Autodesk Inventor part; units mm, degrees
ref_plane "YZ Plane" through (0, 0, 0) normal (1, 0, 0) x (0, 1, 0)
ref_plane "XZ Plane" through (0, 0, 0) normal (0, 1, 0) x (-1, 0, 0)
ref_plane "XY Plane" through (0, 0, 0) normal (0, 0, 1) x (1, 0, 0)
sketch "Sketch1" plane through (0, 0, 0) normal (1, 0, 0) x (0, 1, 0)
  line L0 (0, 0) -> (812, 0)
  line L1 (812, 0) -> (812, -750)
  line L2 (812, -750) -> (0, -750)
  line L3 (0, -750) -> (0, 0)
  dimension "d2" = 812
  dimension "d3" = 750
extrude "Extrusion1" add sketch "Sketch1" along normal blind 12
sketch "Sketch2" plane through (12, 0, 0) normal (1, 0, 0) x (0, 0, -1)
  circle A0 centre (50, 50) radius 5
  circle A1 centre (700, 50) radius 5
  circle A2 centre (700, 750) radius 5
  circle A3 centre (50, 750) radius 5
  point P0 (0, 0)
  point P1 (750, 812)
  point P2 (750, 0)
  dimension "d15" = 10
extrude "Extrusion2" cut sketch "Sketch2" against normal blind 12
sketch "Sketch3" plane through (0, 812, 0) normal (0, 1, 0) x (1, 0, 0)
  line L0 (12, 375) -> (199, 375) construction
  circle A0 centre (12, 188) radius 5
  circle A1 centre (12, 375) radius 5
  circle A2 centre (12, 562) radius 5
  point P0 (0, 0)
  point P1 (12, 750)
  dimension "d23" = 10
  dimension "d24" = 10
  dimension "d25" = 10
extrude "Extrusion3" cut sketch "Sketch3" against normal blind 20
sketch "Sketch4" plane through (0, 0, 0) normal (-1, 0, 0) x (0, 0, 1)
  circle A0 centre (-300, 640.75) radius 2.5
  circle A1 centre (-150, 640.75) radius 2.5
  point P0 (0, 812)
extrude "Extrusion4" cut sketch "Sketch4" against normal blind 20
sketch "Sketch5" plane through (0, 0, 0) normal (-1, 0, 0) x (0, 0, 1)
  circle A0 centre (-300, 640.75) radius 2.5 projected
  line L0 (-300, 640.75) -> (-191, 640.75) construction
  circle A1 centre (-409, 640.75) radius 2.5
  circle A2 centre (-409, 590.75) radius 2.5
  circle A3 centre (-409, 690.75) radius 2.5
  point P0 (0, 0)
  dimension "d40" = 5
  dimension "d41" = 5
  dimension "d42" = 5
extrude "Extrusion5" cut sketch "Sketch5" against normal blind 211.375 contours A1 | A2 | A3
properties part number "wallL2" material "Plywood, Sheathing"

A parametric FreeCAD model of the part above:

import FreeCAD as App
import Part
import Sketcher
from FreeCAD import Vector


def add_polygon(sketch, points):
    """Adds a closed chain of lines whose ends are joined by coincident constraints."""
    first, n = sketch.GeometryCount, len(points)
    for a, b in zip(points, points[1:] + points[:1]):
        sketch.addGeometry(Part.LineSegment(App.Vector(*a, 0), App.Vector(*b, 0)), False)
    for i in range(n):
        sketch.addConstraint(Sketcher.Constraint("Coincident", first + i, 2, first + (i + 1) % n, 1))

doc = App.newDocument("Part")
params = doc.addObject("Spreadsheet::Sheet", "Params")
for row, (alias, value) in enumerate([
    ("sketch1_width", "812 mm"),
    ("sketch1_height", "750 mm"),
    ("pad1_length", "12 mm"),
    ("sketch2_diameter", "10 mm"),
    ("pocket1_length", "12 mm"),
    ("sketch3_diameter", "10 mm"),
    ("pocket2_length", "20 mm"),
    ("sketch4_diameter", "5 mm"),
    ("pocket3_length", "20 mm"),
    ("sketch5_diameter", "5 mm"),
    ("pocket4_length", "211.375 mm"),
], start=1):
    params.set(f"A{row}", alias)
    params.set(f"B{row}", "=" + value)
    params.setAlias(f"B{row}", alias)

body = doc.addObject("PartDesign::Body", "Body")

sketch1 = doc.addObject("Sketcher::SketchObject", "Sketch")
body.addObject(sketch1)
sketch1.AttachmentSupport = (doc.YZ_Plane, [""])
sketch1.MapMode = "FlatFace"
add_polygon(sketch1, [(812, 0), (0, 0), (0, -750), (812, -750)])
sketch1.addConstraint(Sketcher.Constraint("Horizontal", 0))
sketch1.addConstraint(Sketcher.Constraint("Vertical", 1))
sketch1.addConstraint(Sketcher.Constraint("Horizontal", 2))
sketch1.addConstraint(Sketcher.Constraint("Vertical", 3))
sketch1.addConstraint(Sketcher.Constraint("Coincident", 0, 2, -1, 1))
sketch1.addConstraint(Sketcher.Constraint("DistanceX", 0, 2, 0, 1, 812.0))
sketch1.addConstraint(Sketcher.Constraint("DistanceY", 1, 2, 1, 1, 750.0))
sketch1.setExpression("Constraints[9]", "Params.sketch1_width")
sketch1.setExpression("Constraints[10]", "Params.sketch1_height")
pad1 = doc.addObject("PartDesign::Pad", "Pad")
body.addObject(pad1)
pad1.Profile = sketch1
pad1.setExpression("Length", "Params.pad1_length")

sketch2 = doc.addObject("Sketcher::SketchObject", "Sketch001")
body.addObject(sketch2)
sketch2.AttachmentSupport = (doc.YZ_Plane, [""])
sketch2.MapMode = "FlatFace"
sketch2.AttachmentOffset = App.Placement(Vector(0, 0, 12), App.Rotation())
sketch2.addGeometry(Part.Circle(Vector(50, -50, 0), Vector(0, 0, 1), 5), False)
sketch2.addGeometry(Part.Circle(Vector(50, -700, 0), Vector(0, 0, 1), 5), False)
sketch2.addGeometry(Part.Circle(Vector(750, -700, 0), Vector(0, 0, 1), 5), False)
sketch2.addGeometry(Part.Circle(Vector(750, -50, 0), Vector(0, 0, 1), 5), False)
sketch2.addConstraint(Sketcher.Constraint("Equal", 0, 1))
sketch2.addConstraint(Sketcher.Constraint("Equal", 1, 2))
sketch2.addConstraint(Sketcher.Constraint("Equal", 2, 3))
sketch2.addConstraint(Sketcher.Constraint("Horizontal", 1, 3, 2, 3))
sketch2.addConstraint(Sketcher.Constraint("Horizontal", 0, 3, 3, 3))
sketch2.addConstraint(Sketcher.Constraint("Vertical", 0, 3, 1, 3))
sketch2.addConstraint(Sketcher.Constraint("Vertical", 2, 3, 3, 3))
sketch2.addConstraint(Sketcher.Constraint("Diameter", 0, 10.0))
sketch2.addConstraint(Sketcher.Constraint("DistanceX", -1, 1, 0, 3, 50.0))
sketch2.addConstraint(Sketcher.Constraint("DistanceY", 0, 3, -1, 1, 50.0))
sketch2.addConstraint(Sketcher.Constraint("DistanceY", 1, 3, -1, 1, 700.0))
sketch2.addConstraint(Sketcher.Constraint("DistanceX", -1, 1, 2, 3, 750.0))
sketch2.setExpression("Constraints[7]", "Params.sketch2_diameter")
pocket1 = doc.addObject("PartDesign::Pocket", "Pocket")
body.addObject(pocket1)
pocket1.Profile = sketch2
pocket1.setExpression("Length", "Params.pocket1_length")

sketch3 = doc.addObject("Sketcher::SketchObject", "Sketch002")
body.addObject(sketch3)
sketch3.AttachmentSupport = (doc.XZ_Plane, [""])
sketch3.MapMode = "FlatFace"
sketch3.AttachmentOffset = App.Placement(Vector(0, 0, -812), App.Rotation())
sketch3.addGeometry(Part.Circle(Vector(12, -188, 0), Vector(0, 0, 1), 5), False)
sketch3.addGeometry(Part.Circle(Vector(12, -375, 0), Vector(0, 0, 1), 5), False)
sketch3.addGeometry(Part.Circle(Vector(12, -562, 0), Vector(0, 0, 1), 5), False)
sketch3.addConstraint(Sketcher.Constraint("Equal", 0, 1))
sketch3.addConstraint(Sketcher.Constraint("Equal", 1, 2))
sketch3.addConstraint(Sketcher.Constraint("Vertical", 0, 3, 1, 3))
sketch3.addConstraint(Sketcher.Constraint("Vertical", 1, 3, 2, 3))
sketch3.addConstraint(Sketcher.Constraint("Diameter", 0, 10.0))
sketch3.addConstraint(Sketcher.Constraint("DistanceX", -1, 1, 0, 3, 12.0))
sketch3.addConstraint(Sketcher.Constraint("DistanceY", 0, 3, -1, 1, 188.0))
sketch3.addConstraint(Sketcher.Constraint("DistanceY", 1, 3, -1, 1, 375.0))
sketch3.addConstraint(Sketcher.Constraint("DistanceY", 2, 3, -1, 1, 562.0))
sketch3.setExpression("Constraints[4]", "Params.sketch3_diameter")
pocket2 = doc.addObject("PartDesign::Pocket", "Pocket001")
body.addObject(pocket2)
pocket2.Profile = sketch3
pocket2.setExpression("Length", "Params.pocket2_length")
pocket2.Reversed = True

sketch4 = doc.addObject("Sketcher::SketchObject", "Sketch003")
body.addObject(sketch4)
sketch4.AttachmentSupport = (doc.YZ_Plane, [""])
sketch4.MapMode = "FlatFace"
sketch4.addGeometry(Part.Circle(Vector(640.8, -300, 0), Vector(0, 0, 1), 2.5), False)
sketch4.addGeometry(Part.Circle(Vector(640.8, -150, 0), Vector(0, 0, 1), 2.5), False)
sketch4.addConstraint(Sketcher.Constraint("Equal", 0, 1))
sketch4.addConstraint(Sketcher.Constraint("Vertical", 0, 3, 1, 3))
sketch4.addConstraint(Sketcher.Constraint("Diameter", 0, 5.0))
sketch4.addConstraint(Sketcher.Constraint("DistanceY", 0, 3, -1, 1, 300.0))
sketch4.addConstraint(Sketcher.Constraint("DistanceY", 1, 3, -1, 1, 150.0))
sketch4.addConstraint(Sketcher.Constraint("DistanceX", -1, 1, 0, 3, 640.75))
sketch4.setExpression("Constraints[2]", "Params.sketch4_diameter")
pocket3 = doc.addObject("PartDesign::Pocket", "Pocket002")
body.addObject(pocket3)
pocket3.Profile = sketch4
pocket3.setExpression("Length", "Params.pocket3_length")
pocket3.Reversed = True

sketch5 = doc.addObject("Sketcher::SketchObject", "Sketch004")
body.addObject(sketch5)
sketch5.AttachmentSupport = (doc.YZ_Plane, [""])
sketch5.MapMode = "FlatFace"
sketch5.addGeometry(Part.Circle(Vector(640.8, -409, 0), Vector(0, 0, 1), 2.5), False)
sketch5.addGeometry(Part.Circle(Vector(590.8, -409, 0), Vector(0, 0, 1), 2.5), False)
sketch5.addGeometry(Part.Circle(Vector(690.8, -409, 0), Vector(0, 0, 1), 2.5), False)
sketch5.addConstraint(Sketcher.Constraint("Equal", 0, 1))
sketch5.addConstraint(Sketcher.Constraint("Equal", 1, 2))
sketch5.addConstraint(Sketcher.Constraint("Horizontal", 0, 3, 1, 3))
sketch5.addConstraint(Sketcher.Constraint("Horizontal", 1, 3, 2, 3))
sketch5.addConstraint(Sketcher.Constraint("Diameter", 0, 5.0))
sketch5.addConstraint(Sketcher.Constraint("DistanceY", 0, 3, -1, 1, 409.0))
sketch5.addConstraint(Sketcher.Constraint("DistanceX", 1, 3, 0, 3, 50.0))
sketch5.addConstraint(Sketcher.Constraint("DistanceX", 0, 3, 2, 3, 50.0))
sketch5.addConstraint(Sketcher.Constraint("DistanceX", -1, 1, 0, 3, 640.75))
sketch5.setExpression("Constraints[4]", "Params.sketch5_diameter")
pocket4 = doc.addObject("PartDesign::Pocket", "Pocket003")
body.addObject(pocket4)
pocket4.Profile = sketch5
pocket4.setExpression("Length", "Params.pocket4_length")
pocket4.Reversed = True

doc.recompute()
